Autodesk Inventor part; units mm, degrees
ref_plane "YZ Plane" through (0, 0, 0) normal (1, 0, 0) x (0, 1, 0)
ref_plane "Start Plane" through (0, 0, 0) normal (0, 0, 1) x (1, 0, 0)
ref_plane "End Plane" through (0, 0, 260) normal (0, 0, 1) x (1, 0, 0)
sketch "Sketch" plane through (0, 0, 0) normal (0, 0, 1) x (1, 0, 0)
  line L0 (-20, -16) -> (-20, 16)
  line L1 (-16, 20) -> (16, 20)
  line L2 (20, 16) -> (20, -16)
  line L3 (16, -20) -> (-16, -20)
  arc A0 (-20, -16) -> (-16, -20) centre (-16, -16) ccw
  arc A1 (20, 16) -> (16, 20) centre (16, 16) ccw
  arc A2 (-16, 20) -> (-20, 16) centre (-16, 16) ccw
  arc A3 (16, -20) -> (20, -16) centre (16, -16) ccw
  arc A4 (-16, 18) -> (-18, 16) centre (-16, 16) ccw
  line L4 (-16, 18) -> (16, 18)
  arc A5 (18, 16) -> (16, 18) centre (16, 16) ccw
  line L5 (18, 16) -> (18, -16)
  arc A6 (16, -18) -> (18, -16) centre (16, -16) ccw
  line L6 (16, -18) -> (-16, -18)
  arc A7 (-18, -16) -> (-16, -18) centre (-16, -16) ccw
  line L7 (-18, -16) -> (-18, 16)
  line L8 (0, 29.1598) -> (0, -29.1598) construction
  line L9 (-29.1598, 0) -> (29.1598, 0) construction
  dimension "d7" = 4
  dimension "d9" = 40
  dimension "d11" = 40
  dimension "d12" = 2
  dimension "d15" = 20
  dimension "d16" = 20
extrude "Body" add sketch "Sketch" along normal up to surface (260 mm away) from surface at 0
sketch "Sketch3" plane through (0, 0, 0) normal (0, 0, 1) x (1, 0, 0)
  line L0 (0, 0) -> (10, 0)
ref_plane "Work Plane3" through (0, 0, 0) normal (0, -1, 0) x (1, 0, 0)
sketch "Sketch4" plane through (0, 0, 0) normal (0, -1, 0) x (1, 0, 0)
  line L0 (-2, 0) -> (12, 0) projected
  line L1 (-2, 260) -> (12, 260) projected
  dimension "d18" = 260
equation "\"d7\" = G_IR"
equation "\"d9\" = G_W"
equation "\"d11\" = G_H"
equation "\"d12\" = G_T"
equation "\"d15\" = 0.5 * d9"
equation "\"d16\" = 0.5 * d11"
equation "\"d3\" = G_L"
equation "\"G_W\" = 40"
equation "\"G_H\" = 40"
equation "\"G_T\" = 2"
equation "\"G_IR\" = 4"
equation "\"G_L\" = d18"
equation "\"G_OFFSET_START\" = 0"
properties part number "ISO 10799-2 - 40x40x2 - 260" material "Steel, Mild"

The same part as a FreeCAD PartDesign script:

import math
import FreeCAD as App
import Part
import Sketcher

doc = App.newDocument("Part")
body = doc.addObject("PartDesign::Body", "Body")

sketch1 = body.newObject("Sketcher::SketchObject", "Sketch")
sketch1.AttachmentSupport = (doc.getObject("XY_Plane"), [""])
sketch1.MapMode = "FlatFace"
sketch1.addGeometry([
    Part.LineSegment(App.Vector(-20, 16, 0), App.Vector(-20, -16, 0)),
    Part.ArcOfCircle(Part.Circle(App.Vector(-16, -16, 0), App.Vector(0, 0, 1), 4), math.radians(180), math.radians(270)),
    Part.LineSegment(App.Vector(-16, -20, 0), App.Vector(16, -20, 0)),
    Part.ArcOfCircle(Part.Circle(App.Vector(16, -16, 0), App.Vector(0, 0, 1), 4), math.radians(-90), math.radians(0)),
    Part.LineSegment(App.Vector(20, -16, 0), App.Vector(20, 16, 0)),
    Part.ArcOfCircle(Part.Circle(App.Vector(16, 16, 0), App.Vector(0, 0, 1), 4), math.radians(0), math.radians(90)),
    Part.LineSegment(App.Vector(16, 20, 0), App.Vector(-16, 20, 0)),
    Part.ArcOfCircle(Part.Circle(App.Vector(-16, 16, 0), App.Vector(0, 0, 1), 4), math.radians(90), math.radians(180)),
    Part.ArcOfCircle(Part.Circle(App.Vector(-16, 16, 0), App.Vector(0, 0, 1), 2), math.radians(90), math.radians(180)),
    Part.LineSegment(App.Vector(-16, 18, 0), App.Vector(16, 18, 0)),
    Part.ArcOfCircle(Part.Circle(App.Vector(16, 16, 0), App.Vector(0, 0, 1), 2), math.radians(0), math.radians(90)),
    Part.LineSegment(App.Vector(18, 16, 0), App.Vector(18, -16, 0)),
    Part.ArcOfCircle(Part.Circle(App.Vector(16, -16, 0), App.Vector(0, 0, 1), 2), math.radians(-90), math.radians(0)),
    Part.LineSegment(App.Vector(16, -18, 0), App.Vector(-16, -18, 0)),
    Part.ArcOfCircle(Part.Circle(App.Vector(-16, -16, 0), App.Vector(0, 0, 1), 2), math.radians(180), math.radians(270)),
    Part.LineSegment(App.Vector(-18, -16, 0), App.Vector(-18, 16, 0)),
], False)
sketch1.addConstraint([
    Sketcher.Constraint("Tangent", 0, 2, 1, 1),
    Sketcher.Constraint("Tangent", 1, 2, 2, 1),
    Sketcher.Constraint("Tangent", 2, 2, 3, 1),
    Sketcher.Constraint("Tangent", 3, 2, 4, 1),
    Sketcher.Constraint("Tangent", 4, 2, 5, 1),
    Sketcher.Constraint("Tangent", 5, 2, 6, 1),
    Sketcher.Constraint("Tangent", 6, 2, 7, 1),
    Sketcher.Constraint("Tangent", 7, 2, 0, 1),
    Sketcher.Constraint("Tangent", 8, 1, 9, 1),
    Sketcher.Constraint("Tangent", 9, 2, 10, 2),
    Sketcher.Constraint("Tangent", 10, 1, 11, 1),
    Sketcher.Constraint("Tangent", 11, 2, 12, 2),
    Sketcher.Constraint("Tangent", 12, 1, 13, 1),
    Sketcher.Constraint("Tangent", 13, 2, 14, 2),
    Sketcher.Constraint("Tangent", 14, 1, 15, 1),
    Sketcher.Constraint("Tangent", 15, 2, 8, 2),
    Sketcher.Constraint("Vertical", 0),
    Sketcher.Constraint("Horizontal", 2),
    Sketcher.Constraint("Vertical", 4),
    Sketcher.Constraint("Horizontal", 6),
    Sketcher.Constraint("Horizontal", 9),
    Sketcher.Constraint("Vertical", 11),
    Sketcher.Constraint("Horizontal", 13),
    Sketcher.Constraint("Vertical", 15),
    Sketcher.Constraint("Coincident", 8, 3, 7, 3),
    Sketcher.Constraint("Coincident", 10, 3, 5, 3),
    Sketcher.Constraint("Coincident", 12, 3, 3, 3),
    Sketcher.Constraint("Equal", 1, 3),
    Sketcher.Constraint("Equal", 3, 5),
    Sketcher.Constraint("Equal", 5, 7),
    Sketcher.Constraint("Equal", 12, 14),
    Sketcher.Constraint("Symmetric", 1, 3, 5, 3, -1, 1),
    Sketcher.Constraint("Equal", 13, 0),
    Sketcher.Constraint("Radius", 1, 4.0),
    Sketcher.Constraint("Radius", 8, 2.0),
    Sketcher.Constraint("DistanceX", 0, 2, -1, 1, 20.0),
])
pad1 = body.newObject("PartDesign::Pad", "Pad")
pad1.Profile = sketch1
pad1.Length = 260

doc.recompute()
